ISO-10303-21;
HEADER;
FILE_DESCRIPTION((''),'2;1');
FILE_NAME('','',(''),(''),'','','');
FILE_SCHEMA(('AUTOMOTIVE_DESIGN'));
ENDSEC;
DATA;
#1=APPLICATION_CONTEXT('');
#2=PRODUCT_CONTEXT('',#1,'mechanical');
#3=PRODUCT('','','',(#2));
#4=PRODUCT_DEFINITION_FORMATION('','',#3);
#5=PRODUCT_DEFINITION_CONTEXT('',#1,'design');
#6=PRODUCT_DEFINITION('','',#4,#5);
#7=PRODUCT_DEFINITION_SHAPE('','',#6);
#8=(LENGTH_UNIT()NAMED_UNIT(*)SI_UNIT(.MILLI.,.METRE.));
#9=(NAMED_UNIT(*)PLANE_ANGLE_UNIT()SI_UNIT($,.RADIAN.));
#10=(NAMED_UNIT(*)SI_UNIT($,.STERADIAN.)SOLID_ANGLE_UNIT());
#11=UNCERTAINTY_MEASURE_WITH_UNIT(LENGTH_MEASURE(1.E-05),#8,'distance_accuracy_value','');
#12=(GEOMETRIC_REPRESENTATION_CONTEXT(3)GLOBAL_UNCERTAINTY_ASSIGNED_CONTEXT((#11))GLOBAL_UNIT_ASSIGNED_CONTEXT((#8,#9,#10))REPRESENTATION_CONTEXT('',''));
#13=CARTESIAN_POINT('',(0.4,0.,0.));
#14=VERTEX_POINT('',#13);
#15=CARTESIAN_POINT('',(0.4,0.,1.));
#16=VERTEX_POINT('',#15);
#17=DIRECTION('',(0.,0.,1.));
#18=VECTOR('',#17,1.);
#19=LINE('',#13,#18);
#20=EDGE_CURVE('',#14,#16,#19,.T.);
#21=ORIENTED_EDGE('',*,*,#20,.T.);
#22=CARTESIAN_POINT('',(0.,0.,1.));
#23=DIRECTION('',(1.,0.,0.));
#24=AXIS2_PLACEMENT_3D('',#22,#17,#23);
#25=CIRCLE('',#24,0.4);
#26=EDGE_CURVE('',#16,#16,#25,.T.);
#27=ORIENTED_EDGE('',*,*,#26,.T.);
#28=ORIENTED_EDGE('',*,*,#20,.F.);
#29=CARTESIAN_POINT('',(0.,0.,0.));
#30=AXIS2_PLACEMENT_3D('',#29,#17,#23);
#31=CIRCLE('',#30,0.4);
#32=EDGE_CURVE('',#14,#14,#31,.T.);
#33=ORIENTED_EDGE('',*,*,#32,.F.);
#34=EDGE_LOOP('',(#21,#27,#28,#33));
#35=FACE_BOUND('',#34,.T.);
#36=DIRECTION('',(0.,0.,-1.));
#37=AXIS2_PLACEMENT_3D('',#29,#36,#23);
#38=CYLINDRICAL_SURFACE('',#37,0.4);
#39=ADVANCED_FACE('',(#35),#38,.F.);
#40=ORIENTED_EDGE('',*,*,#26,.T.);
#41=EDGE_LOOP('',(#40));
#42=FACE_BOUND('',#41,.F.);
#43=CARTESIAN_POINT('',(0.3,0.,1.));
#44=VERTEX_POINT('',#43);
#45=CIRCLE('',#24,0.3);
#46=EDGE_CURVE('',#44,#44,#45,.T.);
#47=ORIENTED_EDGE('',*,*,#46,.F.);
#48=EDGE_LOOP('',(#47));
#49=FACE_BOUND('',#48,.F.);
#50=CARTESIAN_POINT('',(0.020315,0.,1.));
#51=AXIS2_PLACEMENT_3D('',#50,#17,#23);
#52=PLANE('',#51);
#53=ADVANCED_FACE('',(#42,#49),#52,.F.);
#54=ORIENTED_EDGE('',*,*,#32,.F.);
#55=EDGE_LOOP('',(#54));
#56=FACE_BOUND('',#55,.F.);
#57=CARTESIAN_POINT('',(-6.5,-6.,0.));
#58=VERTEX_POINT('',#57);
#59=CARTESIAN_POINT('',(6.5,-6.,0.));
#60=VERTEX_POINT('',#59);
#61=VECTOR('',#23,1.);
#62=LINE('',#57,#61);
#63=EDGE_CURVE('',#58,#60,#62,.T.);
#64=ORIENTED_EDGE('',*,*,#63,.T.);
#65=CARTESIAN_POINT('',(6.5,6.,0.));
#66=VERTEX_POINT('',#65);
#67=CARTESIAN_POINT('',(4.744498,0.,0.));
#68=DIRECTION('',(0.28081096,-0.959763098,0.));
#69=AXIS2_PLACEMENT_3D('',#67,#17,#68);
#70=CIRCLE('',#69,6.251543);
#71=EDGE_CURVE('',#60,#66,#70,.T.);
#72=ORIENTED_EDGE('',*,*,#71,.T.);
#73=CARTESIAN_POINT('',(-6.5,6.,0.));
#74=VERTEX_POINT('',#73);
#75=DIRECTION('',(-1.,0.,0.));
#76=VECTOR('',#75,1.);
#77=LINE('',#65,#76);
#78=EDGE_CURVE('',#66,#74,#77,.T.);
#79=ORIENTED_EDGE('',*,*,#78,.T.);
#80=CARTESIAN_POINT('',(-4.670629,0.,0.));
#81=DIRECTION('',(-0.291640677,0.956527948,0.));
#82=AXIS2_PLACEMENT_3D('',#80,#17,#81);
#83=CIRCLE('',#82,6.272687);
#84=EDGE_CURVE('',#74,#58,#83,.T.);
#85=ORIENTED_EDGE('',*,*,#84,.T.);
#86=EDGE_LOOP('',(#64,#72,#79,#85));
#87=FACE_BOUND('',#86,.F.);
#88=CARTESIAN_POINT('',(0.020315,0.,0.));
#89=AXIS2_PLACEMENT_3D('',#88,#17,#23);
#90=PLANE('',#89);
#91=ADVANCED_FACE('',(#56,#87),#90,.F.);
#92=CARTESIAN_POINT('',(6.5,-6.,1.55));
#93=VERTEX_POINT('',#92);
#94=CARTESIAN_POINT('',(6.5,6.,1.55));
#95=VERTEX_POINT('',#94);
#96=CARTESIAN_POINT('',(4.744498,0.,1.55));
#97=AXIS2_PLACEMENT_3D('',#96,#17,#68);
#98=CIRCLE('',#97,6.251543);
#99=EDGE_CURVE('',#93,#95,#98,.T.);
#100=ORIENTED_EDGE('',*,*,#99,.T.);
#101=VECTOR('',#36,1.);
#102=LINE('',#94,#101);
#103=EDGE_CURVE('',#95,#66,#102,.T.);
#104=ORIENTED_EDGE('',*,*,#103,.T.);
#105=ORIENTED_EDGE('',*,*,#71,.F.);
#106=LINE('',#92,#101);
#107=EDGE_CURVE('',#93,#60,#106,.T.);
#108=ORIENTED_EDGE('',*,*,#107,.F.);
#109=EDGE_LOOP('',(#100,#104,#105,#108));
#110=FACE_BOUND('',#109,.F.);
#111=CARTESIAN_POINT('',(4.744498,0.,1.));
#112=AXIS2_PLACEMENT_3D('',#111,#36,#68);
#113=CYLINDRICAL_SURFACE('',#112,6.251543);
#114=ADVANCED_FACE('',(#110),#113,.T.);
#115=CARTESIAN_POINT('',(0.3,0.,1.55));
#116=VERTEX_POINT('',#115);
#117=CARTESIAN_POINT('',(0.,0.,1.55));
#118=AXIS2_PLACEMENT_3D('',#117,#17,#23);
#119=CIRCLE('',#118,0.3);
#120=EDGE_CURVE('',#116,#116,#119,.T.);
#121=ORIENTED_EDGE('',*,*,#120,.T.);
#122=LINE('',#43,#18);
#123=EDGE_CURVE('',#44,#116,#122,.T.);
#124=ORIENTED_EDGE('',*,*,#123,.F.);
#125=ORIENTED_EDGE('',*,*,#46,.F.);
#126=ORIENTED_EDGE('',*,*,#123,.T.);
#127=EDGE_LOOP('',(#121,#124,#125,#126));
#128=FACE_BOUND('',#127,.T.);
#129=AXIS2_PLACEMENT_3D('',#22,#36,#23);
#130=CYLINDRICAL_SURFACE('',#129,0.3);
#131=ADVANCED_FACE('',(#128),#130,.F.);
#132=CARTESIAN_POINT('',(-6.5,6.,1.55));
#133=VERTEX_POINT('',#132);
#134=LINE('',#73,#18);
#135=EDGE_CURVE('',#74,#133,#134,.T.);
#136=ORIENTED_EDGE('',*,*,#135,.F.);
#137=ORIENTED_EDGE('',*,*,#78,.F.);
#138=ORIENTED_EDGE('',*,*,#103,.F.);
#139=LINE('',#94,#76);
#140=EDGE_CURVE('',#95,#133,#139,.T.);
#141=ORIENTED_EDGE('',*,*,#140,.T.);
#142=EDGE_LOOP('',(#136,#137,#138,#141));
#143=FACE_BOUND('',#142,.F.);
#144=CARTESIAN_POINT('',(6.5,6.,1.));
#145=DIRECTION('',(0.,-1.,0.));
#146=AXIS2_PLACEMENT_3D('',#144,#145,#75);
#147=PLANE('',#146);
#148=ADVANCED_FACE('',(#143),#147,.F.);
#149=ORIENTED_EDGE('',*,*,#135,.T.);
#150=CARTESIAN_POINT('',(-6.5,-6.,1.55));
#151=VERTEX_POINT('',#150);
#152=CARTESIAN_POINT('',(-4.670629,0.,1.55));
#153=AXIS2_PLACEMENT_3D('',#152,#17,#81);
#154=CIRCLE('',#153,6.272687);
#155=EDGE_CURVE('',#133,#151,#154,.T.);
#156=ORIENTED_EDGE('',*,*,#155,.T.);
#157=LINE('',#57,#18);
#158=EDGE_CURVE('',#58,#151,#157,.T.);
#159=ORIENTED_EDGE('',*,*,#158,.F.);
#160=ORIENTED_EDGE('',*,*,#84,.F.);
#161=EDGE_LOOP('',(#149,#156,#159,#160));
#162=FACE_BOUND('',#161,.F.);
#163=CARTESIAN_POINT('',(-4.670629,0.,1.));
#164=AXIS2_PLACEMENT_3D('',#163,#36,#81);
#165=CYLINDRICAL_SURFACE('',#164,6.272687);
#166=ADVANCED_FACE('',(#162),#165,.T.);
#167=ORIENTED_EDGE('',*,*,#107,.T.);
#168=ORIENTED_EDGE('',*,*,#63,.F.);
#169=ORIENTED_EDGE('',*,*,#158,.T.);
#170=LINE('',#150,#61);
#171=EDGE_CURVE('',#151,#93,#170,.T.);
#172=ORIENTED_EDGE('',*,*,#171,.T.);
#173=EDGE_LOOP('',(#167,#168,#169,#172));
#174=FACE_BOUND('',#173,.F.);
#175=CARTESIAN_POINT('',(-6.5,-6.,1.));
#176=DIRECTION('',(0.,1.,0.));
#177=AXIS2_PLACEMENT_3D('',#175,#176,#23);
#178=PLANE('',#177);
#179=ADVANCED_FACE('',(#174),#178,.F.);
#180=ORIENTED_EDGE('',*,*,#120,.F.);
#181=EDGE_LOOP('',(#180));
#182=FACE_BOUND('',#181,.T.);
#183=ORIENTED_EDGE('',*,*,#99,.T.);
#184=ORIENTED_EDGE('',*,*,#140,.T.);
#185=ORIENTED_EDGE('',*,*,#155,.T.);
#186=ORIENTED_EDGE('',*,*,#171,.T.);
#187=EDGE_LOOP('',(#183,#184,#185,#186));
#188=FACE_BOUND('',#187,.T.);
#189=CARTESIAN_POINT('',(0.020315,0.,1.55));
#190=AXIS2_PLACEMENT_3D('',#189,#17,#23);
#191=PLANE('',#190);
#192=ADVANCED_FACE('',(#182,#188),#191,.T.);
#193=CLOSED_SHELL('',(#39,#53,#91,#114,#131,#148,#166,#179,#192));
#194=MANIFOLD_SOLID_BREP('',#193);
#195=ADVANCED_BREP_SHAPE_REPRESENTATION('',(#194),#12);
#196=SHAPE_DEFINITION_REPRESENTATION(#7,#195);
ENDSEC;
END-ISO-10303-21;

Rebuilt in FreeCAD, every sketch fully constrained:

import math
import FreeCAD as App
import Part
import Sketcher

V = App.Vector
Q = App.Units.Quantity

doc = App.newDocument("Part")
body = doc.addObject("PartDesign::Body", "Body")

# Sketch on XY plane
sketch1 = body.newObject("Sketcher::SketchObject", "Sketch")
sketch1.AttachmentSupport = (doc.getObject("XY_Plane"), [""])
sketch1.MapMode = "FlatFace"
sketch1.addGeometry(Part.LineSegment(V(-6.5, -6, 0), V(6.5, -6, 0)), False)
sketch1.addGeometry(Part.ArcOfCircle(Part.Circle(V(4.744498, 0, 0), V(0, 0, 1), 6.251543), math.radians(-73.691389), math.radians(73.691389)), False)
sketch1.addGeometry(Part.LineSegment(V(6.5, 6, 0), V(-6.5, 6, 0)), False)
sketch1.addGeometry(Part.ArcOfCircle(Part.Circle(V(-4.670629, 0, 0), V(0, 0, 1), 6.272687), math.radians(106.956207), math.radians(253.043793)), False)
sketch1.addGeometry(Part.Circle(V(0, 0, 0), V(0, 0, 1), 0.4), False)
sketch1.addConstraint(Sketcher.Constraint("Coincident", 0, 2, 1, 1))
sketch1.addConstraint(Sketcher.Constraint("Coincident", 1, 2, 2, 1))
sketch1.addConstraint(Sketcher.Constraint("Coincident", 2, 2, 3, 1))
sketch1.addConstraint(Sketcher.Constraint("Coincident", 3, 2, 0, 1))
sketch1.addConstraint(Sketcher.Constraint("Horizontal", 0))
sketch1.addConstraint(Sketcher.Constraint("Horizontal", 2))
sketch1.addConstraint(Sketcher.Constraint("Coincident", 4, 3, -1, 1))
sketch1.addConstraint(Sketcher.Constraint("Symmetric", 0, 2, 2, 2, -1, 1))
sketch1.addConstraint(Sketcher.Constraint("PointOnObject", 1, 3, -1))
sketch1.addConstraint(Sketcher.Constraint("PointOnObject", 3, 3, -1))
sketch1.addConstraint(Sketcher.Constraint("Diameter", 4, Q("0.8 mm")))
sketch1.addConstraint(Sketcher.Constraint("DistanceX", 0, 1, 0, 2, Q("13 mm")))
sketch1.addConstraint(Sketcher.Constraint("DistanceY", 0, 2, -1, 1, Q("6 mm")))
sketch1.addConstraint(Sketcher.Constraint("Radius", 1, Q("6.251543 mm")))
sketch1.addConstraint(Sketcher.Constraint("Radius", 3, Q("6.272687 mm")))
pad1 = body.newObject("PartDesign::Pad", "Pad")
pad1.Profile = sketch1
pad1.Length = 1

# Sketch on XY plane
sketch2 = body.newObject("Sketcher::SketchObject", "Sketch001")
sketch2.AttachmentSupport = (doc.getObject("XY_Plane"), [""])
sketch2.MapMode = "FlatFace"
sketch2.AttachmentOffset = App.Placement(V(0, 0, 1), App.Rotation())
sketch2.addGeometry(Part.LineSegment(V(6.5, 6, 0), V(-6.5, 6, 0)), False)
sketch2.addGeometry(Part.ArcOfCircle(Part.Circle(V(-4.670629, 0, 0), V(0, 0, 1), 6.272687), math.radians(106.956207), math.radians(253.043793)), False)
sketch2.addGeometry(Part.LineSegment(V(-6.5, -6, 0), V(6.5, -6, 0)), False)
sketch2.addGeometry(Part.ArcOfCircle(Part.Circle(V(4.744498, 0, 0), V(0, 0, 1), 6.251543), math.radians(-73.691389), math.radians(73.691389)), False)
sketch2.addGeometry(Part.Circle(V(0, 0, 0), V(0, 0, 1), 0.3), False)
sketch2.addConstraint(Sketcher.Constraint("Coincident", 0, 2, 1, 1))
sketch2.addConstraint(Sketcher.Constraint("Coincident", 1, 2, 2, 1))
sketch2.addConstraint(Sketcher.Constraint("Coincident", 2, 2, 3, 1))
sketch2.addConstraint(Sketcher.Constraint("Coincident", 3, 2, 0, 1))
sketch2.addConstraint(Sketcher.Constraint("Horizontal", 0))
sketch2.addConstraint(Sketcher.Constraint("Horizontal", 2))
sketch2.addConstraint(Sketcher.Constraint("Coincident", 4, 3, -1, 1))
sketch2.addConstraint(Sketcher.Constraint("Symmetric", 0, 2, 2, 2, -1, 1))
sketch2.addConstraint(Sketcher.Constraint("PointOnObject", 1, 3, -1))
sketch2.addConstraint(Sketcher.Constraint("PointOnObject", 3, 3, -1))
sketch2.addConstraint(Sketcher.Constraint("Diameter", 4, Q("0.6 mm")))
sketch2.addConstraint(Sketcher.Constraint("DistanceX", 0, 2, 0, 1, Q("13 mm")))
sketch2.addConstraint(Sketcher.Constraint("DistanceY", -1, 1, 0, 2, Q("6 mm")))
sketch2.addConstraint(Sketcher.Constraint("Radius", 1, Q("6.272687 mm")))
sketch2.addConstraint(Sketcher.Constraint("Radius", 3, Q("6.251543 mm")))
pad2 = body.newObject("PartDesign::Pad", "Pad001")
pad2.Profile = sketch2
pad2.Length = 0.55

doc.recompute()
